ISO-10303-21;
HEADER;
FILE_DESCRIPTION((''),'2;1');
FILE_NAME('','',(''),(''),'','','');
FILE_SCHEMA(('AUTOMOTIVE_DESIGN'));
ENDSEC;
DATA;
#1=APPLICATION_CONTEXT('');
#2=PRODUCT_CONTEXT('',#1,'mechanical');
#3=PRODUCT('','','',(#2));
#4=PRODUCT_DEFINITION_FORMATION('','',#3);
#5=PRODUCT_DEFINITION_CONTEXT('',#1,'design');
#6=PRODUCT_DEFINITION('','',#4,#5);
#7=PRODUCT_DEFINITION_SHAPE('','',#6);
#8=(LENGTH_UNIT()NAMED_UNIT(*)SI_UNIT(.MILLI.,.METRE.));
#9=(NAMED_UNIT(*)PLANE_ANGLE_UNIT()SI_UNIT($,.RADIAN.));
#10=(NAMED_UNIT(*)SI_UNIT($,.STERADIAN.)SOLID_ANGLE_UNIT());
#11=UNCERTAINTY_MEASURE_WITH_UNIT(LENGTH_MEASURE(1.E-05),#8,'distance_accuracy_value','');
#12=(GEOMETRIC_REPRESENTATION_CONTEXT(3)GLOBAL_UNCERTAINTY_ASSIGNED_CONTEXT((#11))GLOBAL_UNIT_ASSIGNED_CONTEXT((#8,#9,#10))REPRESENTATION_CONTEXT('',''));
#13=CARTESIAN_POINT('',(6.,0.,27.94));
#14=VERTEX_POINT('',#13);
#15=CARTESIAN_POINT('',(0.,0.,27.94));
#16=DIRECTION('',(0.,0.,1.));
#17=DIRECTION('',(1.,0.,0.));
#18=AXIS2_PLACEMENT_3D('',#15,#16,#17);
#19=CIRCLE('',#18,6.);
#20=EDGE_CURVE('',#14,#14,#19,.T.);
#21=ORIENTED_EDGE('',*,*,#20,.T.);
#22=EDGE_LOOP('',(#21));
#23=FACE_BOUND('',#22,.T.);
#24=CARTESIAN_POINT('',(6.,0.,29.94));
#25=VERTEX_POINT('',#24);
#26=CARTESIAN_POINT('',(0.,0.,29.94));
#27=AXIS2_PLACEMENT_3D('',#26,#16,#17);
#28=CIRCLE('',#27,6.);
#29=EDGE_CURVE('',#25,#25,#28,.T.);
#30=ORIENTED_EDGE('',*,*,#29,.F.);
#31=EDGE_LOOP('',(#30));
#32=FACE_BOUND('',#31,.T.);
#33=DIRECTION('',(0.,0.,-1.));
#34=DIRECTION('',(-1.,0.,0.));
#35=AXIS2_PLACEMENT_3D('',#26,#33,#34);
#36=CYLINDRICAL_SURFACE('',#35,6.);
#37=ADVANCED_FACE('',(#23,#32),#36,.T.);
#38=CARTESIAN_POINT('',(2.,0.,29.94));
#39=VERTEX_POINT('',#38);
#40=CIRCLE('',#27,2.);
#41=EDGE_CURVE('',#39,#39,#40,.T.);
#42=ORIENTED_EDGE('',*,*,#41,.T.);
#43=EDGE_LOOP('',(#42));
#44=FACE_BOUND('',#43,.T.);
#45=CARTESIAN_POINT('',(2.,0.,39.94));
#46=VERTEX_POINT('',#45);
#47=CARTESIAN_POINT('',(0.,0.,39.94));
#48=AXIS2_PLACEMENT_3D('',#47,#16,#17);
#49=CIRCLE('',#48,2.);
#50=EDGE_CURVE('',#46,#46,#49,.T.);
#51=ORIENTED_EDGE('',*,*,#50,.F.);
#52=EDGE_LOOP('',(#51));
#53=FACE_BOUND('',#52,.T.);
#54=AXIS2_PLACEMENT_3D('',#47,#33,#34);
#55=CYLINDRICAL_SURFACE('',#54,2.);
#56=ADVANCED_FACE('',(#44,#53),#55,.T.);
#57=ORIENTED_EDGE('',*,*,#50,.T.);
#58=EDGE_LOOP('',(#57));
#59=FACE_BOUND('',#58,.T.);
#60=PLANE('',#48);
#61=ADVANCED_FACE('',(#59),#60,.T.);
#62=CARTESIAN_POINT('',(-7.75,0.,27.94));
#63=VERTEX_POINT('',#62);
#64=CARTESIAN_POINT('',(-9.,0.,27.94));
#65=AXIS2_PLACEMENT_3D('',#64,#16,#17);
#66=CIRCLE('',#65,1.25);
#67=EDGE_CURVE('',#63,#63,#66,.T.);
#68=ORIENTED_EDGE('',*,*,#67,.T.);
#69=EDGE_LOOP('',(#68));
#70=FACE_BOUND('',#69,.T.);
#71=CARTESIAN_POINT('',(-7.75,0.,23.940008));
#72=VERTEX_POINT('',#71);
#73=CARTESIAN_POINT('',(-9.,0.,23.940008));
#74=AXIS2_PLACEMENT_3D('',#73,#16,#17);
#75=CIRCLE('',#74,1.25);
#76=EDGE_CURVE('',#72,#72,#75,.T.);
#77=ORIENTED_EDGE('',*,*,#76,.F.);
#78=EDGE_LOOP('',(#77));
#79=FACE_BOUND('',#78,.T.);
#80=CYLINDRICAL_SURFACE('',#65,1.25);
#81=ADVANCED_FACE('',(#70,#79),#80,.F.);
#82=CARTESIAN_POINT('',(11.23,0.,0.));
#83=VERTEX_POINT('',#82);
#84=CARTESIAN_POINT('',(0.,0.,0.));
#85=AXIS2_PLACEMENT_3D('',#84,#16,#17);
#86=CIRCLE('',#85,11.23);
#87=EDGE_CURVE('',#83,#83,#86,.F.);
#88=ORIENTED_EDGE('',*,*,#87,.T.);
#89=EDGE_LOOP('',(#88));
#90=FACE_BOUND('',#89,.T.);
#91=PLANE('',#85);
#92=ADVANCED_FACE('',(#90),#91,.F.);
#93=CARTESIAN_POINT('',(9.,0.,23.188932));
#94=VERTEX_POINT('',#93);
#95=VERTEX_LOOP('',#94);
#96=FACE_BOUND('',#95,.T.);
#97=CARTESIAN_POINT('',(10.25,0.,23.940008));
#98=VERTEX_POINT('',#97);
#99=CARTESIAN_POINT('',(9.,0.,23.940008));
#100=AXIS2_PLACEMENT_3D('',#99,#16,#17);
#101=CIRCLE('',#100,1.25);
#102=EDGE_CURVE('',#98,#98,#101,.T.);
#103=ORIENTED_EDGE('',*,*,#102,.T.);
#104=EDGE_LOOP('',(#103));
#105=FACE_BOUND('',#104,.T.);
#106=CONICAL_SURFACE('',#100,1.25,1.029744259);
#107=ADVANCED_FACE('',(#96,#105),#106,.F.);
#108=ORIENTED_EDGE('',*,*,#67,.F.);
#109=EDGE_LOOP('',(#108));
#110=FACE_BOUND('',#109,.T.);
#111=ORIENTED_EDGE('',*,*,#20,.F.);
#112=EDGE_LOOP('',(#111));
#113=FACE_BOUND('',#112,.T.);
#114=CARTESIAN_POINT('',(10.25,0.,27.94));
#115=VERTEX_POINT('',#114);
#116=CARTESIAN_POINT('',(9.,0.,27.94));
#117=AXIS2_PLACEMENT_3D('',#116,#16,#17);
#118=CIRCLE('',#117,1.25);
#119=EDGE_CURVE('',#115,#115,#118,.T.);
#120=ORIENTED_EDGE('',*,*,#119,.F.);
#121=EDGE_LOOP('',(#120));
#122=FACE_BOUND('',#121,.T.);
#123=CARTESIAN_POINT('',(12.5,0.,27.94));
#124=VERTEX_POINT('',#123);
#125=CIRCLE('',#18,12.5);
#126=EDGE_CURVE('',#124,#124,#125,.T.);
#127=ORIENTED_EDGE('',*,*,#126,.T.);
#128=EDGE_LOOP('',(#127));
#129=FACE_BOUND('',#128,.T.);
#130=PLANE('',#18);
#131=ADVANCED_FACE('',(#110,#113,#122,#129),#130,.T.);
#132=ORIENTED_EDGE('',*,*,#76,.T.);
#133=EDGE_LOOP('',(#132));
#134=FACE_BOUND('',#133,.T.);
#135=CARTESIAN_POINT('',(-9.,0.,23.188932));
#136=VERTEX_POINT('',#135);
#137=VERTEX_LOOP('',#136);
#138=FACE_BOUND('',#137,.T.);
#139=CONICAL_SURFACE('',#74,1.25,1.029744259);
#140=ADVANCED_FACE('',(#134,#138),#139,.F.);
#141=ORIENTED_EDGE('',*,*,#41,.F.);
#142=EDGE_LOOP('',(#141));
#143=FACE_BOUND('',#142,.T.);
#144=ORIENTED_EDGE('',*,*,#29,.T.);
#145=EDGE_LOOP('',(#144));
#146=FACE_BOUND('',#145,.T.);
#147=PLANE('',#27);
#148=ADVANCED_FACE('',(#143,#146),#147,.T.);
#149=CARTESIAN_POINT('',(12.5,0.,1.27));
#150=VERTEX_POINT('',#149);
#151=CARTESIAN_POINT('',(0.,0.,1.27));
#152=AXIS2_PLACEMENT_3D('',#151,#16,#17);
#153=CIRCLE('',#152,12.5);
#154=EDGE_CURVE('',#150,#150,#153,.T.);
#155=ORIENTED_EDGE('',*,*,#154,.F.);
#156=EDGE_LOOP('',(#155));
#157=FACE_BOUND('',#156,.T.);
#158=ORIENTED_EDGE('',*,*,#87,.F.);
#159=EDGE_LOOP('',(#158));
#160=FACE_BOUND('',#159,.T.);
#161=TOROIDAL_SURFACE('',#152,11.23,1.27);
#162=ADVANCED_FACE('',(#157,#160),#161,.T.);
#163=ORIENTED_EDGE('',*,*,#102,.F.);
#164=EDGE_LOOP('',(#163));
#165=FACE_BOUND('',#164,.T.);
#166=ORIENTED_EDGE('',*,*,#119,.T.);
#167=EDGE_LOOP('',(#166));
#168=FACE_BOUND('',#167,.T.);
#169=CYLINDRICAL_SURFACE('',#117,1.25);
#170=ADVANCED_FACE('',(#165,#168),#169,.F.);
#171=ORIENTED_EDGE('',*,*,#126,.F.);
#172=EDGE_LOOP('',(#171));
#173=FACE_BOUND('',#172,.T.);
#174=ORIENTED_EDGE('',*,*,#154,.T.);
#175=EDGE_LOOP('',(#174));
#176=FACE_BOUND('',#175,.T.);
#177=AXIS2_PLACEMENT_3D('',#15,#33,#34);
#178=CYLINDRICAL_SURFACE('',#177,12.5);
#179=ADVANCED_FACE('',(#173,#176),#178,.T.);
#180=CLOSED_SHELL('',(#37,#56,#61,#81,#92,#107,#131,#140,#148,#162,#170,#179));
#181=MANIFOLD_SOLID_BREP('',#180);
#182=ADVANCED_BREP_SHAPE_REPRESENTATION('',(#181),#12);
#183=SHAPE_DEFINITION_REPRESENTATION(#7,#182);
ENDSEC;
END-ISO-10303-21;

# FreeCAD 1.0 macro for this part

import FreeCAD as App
import Part
import Sketcher
Q = App.Units.Quantity


def edges_at(feature, points):
    """Names of the edges that pass closest to the given points."""
    edges = feature.Shape.Edges
    near = lambda p: min(range(len(edges)), key=lambda i: edges[i].distToShape(Part.Vertex(*p))[0])
    return sorted({f"Edge{near(p) + 1}" for p in points})

doc = App.newDocument("Part")
body = doc.addObject("PartDesign::Body", "Body")

# Sketch on XY plane
sketch1 = body.newObject("Sketcher::SketchObject", "Sketch")
sketch1.AttachmentSupport = (doc.getObject("XY_Plane"), [""])
sketch1.MapMode = "FlatFace"
sketch1.addGeometry(Part.Circle(App.Vector(0, 0, 0), App.Vector(0, 0, 1), 12), False)
sketch1.addConstraint([
    Sketcher.Constraint("Coincident", 0, 3, -1, 1),
    Sketcher.Constraint("Diameter", 0, Q("25 mm")),
])
pad1 = body.newObject("PartDesign::Pad", "Pad")
pad1.Profile = sketch1
pad1.Length = 27.94

# Sketch on XY plane
sketch2 = body.newObject("Sketcher::SketchObject", "Sketch001")
sketch2.AttachmentSupport = (doc.getObject("XY_Plane"), [""])
sketch2.MapMode = "FlatFace"
sketch2.AttachmentOffset = App.Placement(App.Vector(0, 0, 27.94), App.Rotation())
sketch2.addGeometry(Part.Circle(App.Vector(0, 0, 0), App.Vector(0, 0, 1), 6), False)
sketch2.addConstraint([
    Sketcher.Constraint("Coincident", 0, 3, -1, 1),
    Sketcher.Constraint("Diameter", 0, Q("12 mm")),
])
pad2 = body.newObject("PartDesign::Pad", "Pad001")
pad2.Profile = sketch2
pad2.Length = 2

# Sketch on XY plane
sketch3 = body.newObject("Sketcher::SketchObject", "Sketch002")
sketch3.AttachmentSupport = (doc.getObject("XY_Plane"), [""])
sketch3.MapMode = "FlatFace"
sketch3.AttachmentOffset = App.Placement(App.Vector(0, 0, 29.94), App.Rotation())
sketch3.addGeometry(Part.Circle(App.Vector(0, 0, 0), App.Vector(0, 0, 1), 2), False)
sketch3.addConstraint([
    Sketcher.Constraint("Coincident", 0, 3, -1, 1),
    Sketcher.Constraint("Diameter", 0, Q("4 mm")),
])
pad3 = body.newObject("PartDesign::Pad", "Pad002")
pad3.Profile = sketch3
pad3.Length = 10

# Sketch on XY plane
sketch4 = body.newObject("Sketcher::SketchObject", "Sketch003")
sketch4.AttachmentSupport = (doc.getObject("XY_Plane"), [""])
sketch4.MapMode = "FlatFace"
sketch4.AttachmentOffset = App.Placement(App.Vector(0, 0, 27.94), App.Rotation())
sketch4.addGeometry([
    Part.Circle(App.Vector(-9, 0, 0), App.Vector(0, 0, 1), 1.2),
    Part.Circle(App.Vector(9, 0, 0), App.Vector(0, 0, 1), 1.2),
], False)
sketch4.addConstraint([
    Sketcher.Constraint("Equal", 0, 1),
    Sketcher.Constraint("Symmetric", 0, 3, 1, 3, -1, 1),
    Sketcher.Constraint("PointOnObject", 0, 3, -1),
    Sketcher.Constraint("Diameter", 0, Q("2.5 mm")),
    Sketcher.Constraint("DistanceX", 0, 3, -1, 1, Q("9 mm")),
])
doc.recompute()
hole = body.newObject("PartDesign::Hole", "Hole")
hole.Profile = sketch4
hole.ThreadType = "None"
hole.Diameter = 2.5
hole.DepthType = "Dimension"
hole.Depth = 3.999992
hole.DrillPoint = "Angled"
hole.DrillPointAngle = 118
doc.recompute()

fillet = body.newObject("PartDesign::Fillet", "Fillet")
fillet.Base = (hole, edges_at(hole, [(-12.5, 0, 0)]))
fillet.Radius = 1.27

doc.recompute()
